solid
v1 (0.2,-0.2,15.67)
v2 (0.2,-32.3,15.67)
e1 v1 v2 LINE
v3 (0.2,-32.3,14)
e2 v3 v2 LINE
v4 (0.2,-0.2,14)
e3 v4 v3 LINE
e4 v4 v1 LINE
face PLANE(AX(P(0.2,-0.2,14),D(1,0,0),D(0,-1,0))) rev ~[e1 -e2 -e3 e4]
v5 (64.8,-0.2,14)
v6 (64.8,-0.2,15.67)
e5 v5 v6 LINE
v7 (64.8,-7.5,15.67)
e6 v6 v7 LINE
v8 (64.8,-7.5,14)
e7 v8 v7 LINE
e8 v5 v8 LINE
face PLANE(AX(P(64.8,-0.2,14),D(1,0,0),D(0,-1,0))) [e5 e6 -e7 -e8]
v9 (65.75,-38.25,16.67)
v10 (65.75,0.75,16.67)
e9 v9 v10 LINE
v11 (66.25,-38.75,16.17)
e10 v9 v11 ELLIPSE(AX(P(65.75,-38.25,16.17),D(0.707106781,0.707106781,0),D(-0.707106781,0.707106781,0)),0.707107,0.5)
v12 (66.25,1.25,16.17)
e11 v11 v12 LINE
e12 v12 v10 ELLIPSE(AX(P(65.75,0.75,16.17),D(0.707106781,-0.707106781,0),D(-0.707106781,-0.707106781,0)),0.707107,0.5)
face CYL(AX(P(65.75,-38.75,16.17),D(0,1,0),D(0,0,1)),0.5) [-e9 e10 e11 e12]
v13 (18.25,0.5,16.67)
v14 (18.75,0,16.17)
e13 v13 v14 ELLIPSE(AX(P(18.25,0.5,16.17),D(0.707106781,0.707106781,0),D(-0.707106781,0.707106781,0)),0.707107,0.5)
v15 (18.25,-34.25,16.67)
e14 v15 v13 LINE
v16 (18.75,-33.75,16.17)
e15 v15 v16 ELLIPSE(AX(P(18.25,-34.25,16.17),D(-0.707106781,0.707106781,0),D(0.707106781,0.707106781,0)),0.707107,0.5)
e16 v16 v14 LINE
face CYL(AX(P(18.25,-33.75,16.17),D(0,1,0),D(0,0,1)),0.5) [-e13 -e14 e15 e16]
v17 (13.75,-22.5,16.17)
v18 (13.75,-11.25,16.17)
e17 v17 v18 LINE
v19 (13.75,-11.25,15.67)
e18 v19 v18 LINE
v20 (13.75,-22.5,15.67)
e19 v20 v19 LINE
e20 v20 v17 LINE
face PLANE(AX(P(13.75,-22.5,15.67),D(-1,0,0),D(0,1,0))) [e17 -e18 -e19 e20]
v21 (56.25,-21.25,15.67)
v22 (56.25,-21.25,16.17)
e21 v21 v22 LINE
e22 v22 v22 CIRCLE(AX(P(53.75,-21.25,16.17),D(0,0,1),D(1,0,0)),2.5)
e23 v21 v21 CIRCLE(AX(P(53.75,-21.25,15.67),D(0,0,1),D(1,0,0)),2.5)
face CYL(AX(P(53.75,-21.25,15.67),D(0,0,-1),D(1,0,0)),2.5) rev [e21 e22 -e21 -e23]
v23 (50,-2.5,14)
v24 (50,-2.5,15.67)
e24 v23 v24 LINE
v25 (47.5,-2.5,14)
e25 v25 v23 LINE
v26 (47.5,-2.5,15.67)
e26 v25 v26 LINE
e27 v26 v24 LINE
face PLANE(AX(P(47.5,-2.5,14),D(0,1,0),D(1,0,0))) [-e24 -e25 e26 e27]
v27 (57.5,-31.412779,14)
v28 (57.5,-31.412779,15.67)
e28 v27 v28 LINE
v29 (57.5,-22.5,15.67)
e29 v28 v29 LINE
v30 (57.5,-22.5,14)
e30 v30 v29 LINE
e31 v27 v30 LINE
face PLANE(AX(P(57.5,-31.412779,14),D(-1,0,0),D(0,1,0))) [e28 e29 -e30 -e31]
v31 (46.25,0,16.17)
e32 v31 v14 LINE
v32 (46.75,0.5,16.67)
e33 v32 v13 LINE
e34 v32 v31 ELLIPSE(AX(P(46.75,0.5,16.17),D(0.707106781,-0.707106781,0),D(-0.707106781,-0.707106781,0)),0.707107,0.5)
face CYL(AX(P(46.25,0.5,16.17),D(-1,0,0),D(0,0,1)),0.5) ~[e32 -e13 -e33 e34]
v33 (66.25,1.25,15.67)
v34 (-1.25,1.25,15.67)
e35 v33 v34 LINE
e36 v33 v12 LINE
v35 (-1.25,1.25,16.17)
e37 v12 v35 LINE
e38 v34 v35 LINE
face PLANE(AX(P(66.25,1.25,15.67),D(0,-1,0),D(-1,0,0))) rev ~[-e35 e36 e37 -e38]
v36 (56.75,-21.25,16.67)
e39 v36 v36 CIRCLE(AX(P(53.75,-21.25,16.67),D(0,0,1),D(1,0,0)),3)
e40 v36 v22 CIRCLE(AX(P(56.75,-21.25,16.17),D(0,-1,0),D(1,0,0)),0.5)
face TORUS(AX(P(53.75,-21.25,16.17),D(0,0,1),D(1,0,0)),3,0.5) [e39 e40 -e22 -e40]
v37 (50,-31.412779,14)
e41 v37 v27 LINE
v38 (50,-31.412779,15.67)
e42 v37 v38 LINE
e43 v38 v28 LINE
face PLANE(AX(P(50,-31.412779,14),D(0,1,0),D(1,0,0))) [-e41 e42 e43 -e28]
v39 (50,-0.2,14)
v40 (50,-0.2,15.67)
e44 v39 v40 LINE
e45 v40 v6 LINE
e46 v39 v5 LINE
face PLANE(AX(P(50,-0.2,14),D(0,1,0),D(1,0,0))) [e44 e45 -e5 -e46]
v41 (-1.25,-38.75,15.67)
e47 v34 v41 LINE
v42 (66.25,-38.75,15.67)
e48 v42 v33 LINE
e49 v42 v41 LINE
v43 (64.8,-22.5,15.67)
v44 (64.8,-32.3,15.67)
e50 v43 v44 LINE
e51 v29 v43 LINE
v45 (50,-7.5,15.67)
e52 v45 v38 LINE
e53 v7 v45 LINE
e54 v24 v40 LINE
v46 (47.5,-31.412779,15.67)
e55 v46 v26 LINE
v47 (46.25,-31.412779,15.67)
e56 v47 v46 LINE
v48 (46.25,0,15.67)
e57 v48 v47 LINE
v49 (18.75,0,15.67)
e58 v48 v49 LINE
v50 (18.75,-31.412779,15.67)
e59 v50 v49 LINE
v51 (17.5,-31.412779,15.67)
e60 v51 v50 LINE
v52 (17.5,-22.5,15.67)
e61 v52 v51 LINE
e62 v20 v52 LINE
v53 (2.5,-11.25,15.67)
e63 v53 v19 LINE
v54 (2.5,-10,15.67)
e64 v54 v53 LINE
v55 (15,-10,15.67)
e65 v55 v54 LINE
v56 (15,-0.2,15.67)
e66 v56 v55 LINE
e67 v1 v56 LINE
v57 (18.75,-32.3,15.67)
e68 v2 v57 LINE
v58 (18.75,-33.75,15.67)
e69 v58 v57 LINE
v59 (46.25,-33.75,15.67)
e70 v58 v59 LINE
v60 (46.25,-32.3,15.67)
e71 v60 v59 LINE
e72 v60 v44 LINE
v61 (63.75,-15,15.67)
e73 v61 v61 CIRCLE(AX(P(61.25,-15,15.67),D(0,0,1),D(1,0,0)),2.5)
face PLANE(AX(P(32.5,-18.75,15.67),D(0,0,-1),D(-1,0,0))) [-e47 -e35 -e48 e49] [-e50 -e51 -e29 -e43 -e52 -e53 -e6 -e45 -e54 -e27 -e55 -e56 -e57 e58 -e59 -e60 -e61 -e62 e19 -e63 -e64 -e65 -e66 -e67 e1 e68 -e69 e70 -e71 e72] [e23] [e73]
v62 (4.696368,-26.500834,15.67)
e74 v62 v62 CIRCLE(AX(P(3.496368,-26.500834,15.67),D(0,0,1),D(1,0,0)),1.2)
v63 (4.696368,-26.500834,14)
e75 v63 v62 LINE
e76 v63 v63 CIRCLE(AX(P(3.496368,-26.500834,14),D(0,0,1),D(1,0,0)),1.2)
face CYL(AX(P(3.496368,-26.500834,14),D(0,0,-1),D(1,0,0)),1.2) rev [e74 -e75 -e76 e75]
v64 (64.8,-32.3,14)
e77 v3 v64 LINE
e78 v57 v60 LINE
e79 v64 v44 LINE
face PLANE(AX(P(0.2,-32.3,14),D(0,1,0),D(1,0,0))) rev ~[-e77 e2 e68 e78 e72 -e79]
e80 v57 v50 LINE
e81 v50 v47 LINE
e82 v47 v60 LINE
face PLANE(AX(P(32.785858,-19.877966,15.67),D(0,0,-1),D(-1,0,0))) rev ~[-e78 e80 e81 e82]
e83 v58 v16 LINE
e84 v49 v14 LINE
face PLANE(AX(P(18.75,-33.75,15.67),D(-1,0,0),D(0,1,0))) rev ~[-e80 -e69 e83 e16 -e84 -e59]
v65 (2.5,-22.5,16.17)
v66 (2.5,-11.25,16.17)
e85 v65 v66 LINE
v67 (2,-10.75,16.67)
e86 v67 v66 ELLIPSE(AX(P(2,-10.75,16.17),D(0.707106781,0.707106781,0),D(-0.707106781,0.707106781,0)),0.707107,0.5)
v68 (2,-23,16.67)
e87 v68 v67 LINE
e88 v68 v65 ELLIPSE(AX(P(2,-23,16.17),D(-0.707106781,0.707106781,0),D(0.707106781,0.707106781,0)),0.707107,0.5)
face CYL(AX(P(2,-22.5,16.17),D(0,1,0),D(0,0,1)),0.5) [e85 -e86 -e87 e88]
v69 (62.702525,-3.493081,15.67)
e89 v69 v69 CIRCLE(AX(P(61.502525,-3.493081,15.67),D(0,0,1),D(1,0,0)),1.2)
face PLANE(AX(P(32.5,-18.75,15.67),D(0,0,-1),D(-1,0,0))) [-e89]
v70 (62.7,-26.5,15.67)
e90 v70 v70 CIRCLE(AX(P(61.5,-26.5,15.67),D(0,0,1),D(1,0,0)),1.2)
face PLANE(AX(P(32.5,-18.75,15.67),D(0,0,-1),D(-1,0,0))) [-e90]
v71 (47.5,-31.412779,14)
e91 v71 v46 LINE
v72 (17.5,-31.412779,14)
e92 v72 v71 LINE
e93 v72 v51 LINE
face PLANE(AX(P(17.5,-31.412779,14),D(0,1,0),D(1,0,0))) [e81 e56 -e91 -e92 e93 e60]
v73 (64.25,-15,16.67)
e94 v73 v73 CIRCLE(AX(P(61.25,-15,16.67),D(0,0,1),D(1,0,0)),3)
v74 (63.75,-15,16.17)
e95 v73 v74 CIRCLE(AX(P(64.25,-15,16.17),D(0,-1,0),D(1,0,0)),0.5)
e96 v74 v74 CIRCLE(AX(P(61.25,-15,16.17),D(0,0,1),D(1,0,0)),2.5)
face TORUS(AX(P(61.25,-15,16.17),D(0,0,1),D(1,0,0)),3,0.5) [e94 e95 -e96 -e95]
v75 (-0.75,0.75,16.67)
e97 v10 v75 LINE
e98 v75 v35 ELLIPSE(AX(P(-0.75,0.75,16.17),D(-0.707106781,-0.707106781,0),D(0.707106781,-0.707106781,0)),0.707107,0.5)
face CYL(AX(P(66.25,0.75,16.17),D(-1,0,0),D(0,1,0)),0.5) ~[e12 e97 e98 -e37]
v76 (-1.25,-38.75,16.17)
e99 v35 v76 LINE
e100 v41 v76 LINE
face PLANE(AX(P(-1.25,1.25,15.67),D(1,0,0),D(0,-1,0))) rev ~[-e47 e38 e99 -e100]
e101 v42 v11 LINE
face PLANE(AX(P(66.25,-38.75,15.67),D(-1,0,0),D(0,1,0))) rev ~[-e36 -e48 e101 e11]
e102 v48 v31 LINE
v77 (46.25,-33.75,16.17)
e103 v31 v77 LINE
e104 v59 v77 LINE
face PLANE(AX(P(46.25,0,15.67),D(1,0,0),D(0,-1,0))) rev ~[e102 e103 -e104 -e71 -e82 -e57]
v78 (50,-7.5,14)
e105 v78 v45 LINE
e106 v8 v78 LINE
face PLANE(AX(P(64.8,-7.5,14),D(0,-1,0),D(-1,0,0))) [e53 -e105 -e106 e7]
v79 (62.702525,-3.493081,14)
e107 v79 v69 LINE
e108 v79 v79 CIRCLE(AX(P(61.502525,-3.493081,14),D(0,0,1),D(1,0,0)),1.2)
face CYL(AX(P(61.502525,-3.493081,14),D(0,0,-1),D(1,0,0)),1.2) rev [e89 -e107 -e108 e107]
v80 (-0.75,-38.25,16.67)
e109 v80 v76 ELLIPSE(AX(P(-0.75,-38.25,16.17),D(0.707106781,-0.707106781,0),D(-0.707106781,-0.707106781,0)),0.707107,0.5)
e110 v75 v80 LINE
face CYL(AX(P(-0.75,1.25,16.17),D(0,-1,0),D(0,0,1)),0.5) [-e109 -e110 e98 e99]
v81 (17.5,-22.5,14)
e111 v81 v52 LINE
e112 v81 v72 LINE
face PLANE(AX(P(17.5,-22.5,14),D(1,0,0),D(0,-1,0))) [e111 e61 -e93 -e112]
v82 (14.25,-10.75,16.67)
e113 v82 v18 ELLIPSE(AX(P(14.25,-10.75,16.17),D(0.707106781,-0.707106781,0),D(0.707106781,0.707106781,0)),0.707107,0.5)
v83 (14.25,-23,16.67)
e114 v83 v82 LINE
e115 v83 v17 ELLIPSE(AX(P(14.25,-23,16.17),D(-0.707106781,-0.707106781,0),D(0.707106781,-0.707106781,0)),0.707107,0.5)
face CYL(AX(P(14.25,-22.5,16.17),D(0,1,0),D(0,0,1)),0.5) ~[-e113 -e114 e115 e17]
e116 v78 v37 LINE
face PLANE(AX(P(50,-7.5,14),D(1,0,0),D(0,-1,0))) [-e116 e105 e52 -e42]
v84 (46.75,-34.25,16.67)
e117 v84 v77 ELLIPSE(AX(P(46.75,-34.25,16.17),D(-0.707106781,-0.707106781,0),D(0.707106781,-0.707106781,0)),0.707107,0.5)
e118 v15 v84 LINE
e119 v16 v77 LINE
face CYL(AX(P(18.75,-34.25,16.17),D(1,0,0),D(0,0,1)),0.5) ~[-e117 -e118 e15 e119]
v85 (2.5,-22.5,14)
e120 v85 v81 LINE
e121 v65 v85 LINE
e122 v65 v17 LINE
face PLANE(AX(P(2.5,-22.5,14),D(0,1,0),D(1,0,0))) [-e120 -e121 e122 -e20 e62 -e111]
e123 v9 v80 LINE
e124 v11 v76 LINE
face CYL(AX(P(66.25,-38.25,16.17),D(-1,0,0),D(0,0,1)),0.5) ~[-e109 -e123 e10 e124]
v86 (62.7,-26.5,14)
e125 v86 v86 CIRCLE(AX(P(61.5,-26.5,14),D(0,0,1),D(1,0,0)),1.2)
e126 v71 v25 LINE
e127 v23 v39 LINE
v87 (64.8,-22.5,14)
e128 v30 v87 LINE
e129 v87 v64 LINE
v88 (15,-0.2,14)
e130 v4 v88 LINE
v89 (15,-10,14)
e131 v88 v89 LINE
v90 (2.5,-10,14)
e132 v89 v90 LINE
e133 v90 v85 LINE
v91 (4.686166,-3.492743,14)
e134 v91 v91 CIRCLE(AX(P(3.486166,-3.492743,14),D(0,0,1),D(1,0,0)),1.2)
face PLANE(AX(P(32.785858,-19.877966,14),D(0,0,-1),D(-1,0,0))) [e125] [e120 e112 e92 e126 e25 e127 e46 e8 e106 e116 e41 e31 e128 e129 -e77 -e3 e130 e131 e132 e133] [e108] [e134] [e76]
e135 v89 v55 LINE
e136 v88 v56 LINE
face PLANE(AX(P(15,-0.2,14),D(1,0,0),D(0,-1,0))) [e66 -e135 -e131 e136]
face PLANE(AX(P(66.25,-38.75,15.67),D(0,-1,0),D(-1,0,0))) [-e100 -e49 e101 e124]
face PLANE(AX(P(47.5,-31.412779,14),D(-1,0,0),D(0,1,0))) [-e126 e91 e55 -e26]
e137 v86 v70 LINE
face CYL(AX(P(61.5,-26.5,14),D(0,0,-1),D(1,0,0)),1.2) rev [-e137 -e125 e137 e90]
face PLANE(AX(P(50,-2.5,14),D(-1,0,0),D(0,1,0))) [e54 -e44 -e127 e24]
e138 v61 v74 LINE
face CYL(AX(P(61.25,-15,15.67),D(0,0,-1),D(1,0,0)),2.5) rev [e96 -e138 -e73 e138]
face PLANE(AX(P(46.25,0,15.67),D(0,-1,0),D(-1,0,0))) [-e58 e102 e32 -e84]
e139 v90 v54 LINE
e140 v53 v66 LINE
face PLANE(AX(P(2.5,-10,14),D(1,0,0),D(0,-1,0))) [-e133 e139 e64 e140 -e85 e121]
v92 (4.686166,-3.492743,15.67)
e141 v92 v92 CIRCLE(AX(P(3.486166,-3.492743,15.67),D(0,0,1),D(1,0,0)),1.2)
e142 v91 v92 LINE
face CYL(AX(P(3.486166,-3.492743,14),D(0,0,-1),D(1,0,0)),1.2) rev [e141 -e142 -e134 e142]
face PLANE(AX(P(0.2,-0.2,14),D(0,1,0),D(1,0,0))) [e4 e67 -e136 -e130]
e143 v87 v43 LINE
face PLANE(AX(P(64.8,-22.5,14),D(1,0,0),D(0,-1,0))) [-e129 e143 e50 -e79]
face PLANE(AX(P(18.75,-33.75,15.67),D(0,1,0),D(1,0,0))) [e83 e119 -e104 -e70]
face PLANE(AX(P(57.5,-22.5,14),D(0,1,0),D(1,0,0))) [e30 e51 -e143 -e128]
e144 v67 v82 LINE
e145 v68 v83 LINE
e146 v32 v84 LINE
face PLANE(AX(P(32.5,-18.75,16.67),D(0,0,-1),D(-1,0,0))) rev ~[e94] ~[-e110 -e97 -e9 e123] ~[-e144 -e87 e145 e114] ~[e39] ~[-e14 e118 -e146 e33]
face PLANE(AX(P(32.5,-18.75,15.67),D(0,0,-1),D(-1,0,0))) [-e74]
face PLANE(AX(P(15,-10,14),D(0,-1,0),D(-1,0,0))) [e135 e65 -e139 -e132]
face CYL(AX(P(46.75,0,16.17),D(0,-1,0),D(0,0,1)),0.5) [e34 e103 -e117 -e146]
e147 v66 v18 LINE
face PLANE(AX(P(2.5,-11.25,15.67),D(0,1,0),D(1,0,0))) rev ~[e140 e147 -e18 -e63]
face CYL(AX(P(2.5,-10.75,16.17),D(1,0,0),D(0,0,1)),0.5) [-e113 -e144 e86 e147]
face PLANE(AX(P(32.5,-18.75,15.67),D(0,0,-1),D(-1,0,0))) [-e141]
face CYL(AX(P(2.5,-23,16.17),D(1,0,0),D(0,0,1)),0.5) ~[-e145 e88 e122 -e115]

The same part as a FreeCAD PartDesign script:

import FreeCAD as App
import Part
import Sketcher
from FreeCAD import Vector


def edges_at(feature, points):
    """Names of the edges that pass closest to the given points."""
    edges = feature.Shape.Edges
    near = lambda p: min(range(len(edges)), key=lambda i: edges[i].distToShape(Part.Vertex(*p))[0])
    return sorted({f"Edge{near(p) + 1}" for p in points})


def add_polygon(sketch, points):
    """Adds a closed chain of lines whose ends are joined by coincident constraints."""
    first, n = sketch.GeometryCount, len(points)
    for a, b in zip(points, points[1:] + points[:1]):
        sketch.addGeometry(Part.LineSegment(App.Vector(*a, 0), App.Vector(*b, 0)), False)
    for i in range(n):
        sketch.addConstraint(Sketcher.Constraint("Coincident", first + i, 2, first + (i + 1) % n, 1))

doc = App.newDocument("Part")
body = doc.addObject("PartDesign::Body", "Body")

# Sketch on XY plane
sketch1 = body.newObject("Sketcher::SketchObject", "Sketch")
sketch1.AttachmentSupport = (doc.getObject("XY_Plane"), [""])
sketch1.MapMode = "FlatFace"
add_polygon(sketch1, [(15, -0.2), (0.2, -0.2), (0.2, -32.3), (64.8, -32.3), (64.8, -22.5), (57.5, -22.5), (57.5, -31.4), (50, -31.4), (50, -7.5), (64.8, -7.5), (64.8, -0.2), (50, -0.2), (50, -2.5), (47.5, -2.5), (47.5, -31.4), (17.5, -31.4), (17.5, -22.5), (2.5, -22.5), (2.5, -10), (15, -10)])  # lines 0-19
sketch1.addGeometry(Part.Circle(Vector(61.5, -26.5, 0), Vector(0, 0, 1), 1.2), False)  # 20
sketch1.addGeometry(Part.Circle(Vector(3.5, -26.5, 0), Vector(0, 0, 1), 1.2), False)  # 21
sketch1.addGeometry(Part.Circle(Vector(61.5, -3.5, 0), Vector(0, 0, 1), 1.2), False)  # 22
sketch1.addGeometry(Part.Circle(Vector(3.5, -3.5, 0), Vector(0, 0, 1), 1.2), False)  # 23
sketch1.addConstraint(Sketcher.Constraint("Horizontal", 0))
sketch1.addConstraint(Sketcher.Constraint("Vertical", 1))
sketch1.addConstraint(Sketcher.Constraint("Horizontal", 2))
sketch1.addConstraint(Sketcher.Constraint("Vertical", 3))
sketch1.addConstraint(Sketcher.Constraint("Horizontal", 4))
sketch1.addConstraint(Sketcher.Constraint("Vertical", 5))
sketch1.addConstraint(Sketcher.Constraint("Horizontal", 6))
sketch1.addConstraint(Sketcher.Constraint("Vertical", 7))
sketch1.addConstraint(Sketcher.Constraint("Horizontal", 8))
sketch1.addConstraint(Sketcher.Constraint("Vertical", 9))
sketch1.addConstraint(Sketcher.Constraint("Horizontal", 10))
sketch1.addConstraint(Sketcher.Constraint("Vertical", 11))
sketch1.addConstraint(Sketcher.Constraint("Horizontal", 12))
sketch1.addConstraint(Sketcher.Constraint("Vertical", 13))
sketch1.addConstraint(Sketcher.Constraint("Horizontal", 14))
sketch1.addConstraint(Sketcher.Constraint("Vertical", 15))
sketch1.addConstraint(Sketcher.Constraint("Horizontal", 16))
sketch1.addConstraint(Sketcher.Constraint("Vertical", 17))
sketch1.addConstraint(Sketcher.Constraint("Horizontal", 18))
sketch1.addConstraint(Sketcher.Constraint("Vertical", 19))
sketch1.addConstraint(Sketcher.Constraint("Equal", 20, 21))
sketch1.addConstraint(Sketcher.Constraint("Equal", 21, 22))
sketch1.addConstraint(Sketcher.Constraint("Equal", 22, 23))
sketch1.addConstraint(Sketcher.Constraint("Horizontal", 0, 2, 9, 2))
sketch1.addConstraint(Sketcher.Constraint("Horizontal", 6, 2, 13, 2))
sketch1.addConstraint(Sketcher.Constraint("Horizontal", 4, 2, 15, 2))
sketch1.addConstraint(Sketcher.Constraint("Vertical", 3, 2, 8, 2))
sketch1.addConstraint(Sketcher.Constraint("Vertical", 7, 2, 10, 2))
sketch1.addConstraint(Sketcher.Constraint("Equal", 0, 8))
sketch1.addConstraint(Sketcher.Constraint("Equal", 4, 9))
sketch1.addConstraint(Sketcher.Constraint("Equal", 18, 17))
sketch1.addConstraint(Sketcher.Constraint("Equal", 3, 19))
sketch1.addConstraint(Sketcher.Constraint("Diameter", 20, 2.4))
sketch1.addConstraint(Sketcher.Constraint("DistanceX", 14, 2, 14, 1, 30.0))
sketch1.addConstraint(Sketcher.Constraint("DistanceX", 16, 2, 16, 1, 15.0))
sketch1.addConstraint(Sketcher.Constraint("DistanceX", 0, 2, 0, 1, 14.8))
sketch1.addConstraint(Sketcher.Constraint("DistanceX", 2, 1, 2, 2, 64.6))
sketch1.addConstraint(Sketcher.Constraint("DistanceX", 4, 2, 4, 1, 7.3))
sketch1.addConstraint(Sketcher.Constraint("DistanceX", 12, 2, 12, 1, 2.5))
sketch1.addConstraint(Sketcher.Constraint("DistanceY", 1, 2, 1, 1, 32.1))
sketch1.addConstraint(Sketcher.Constraint("DistanceY", 11, 2, 11, 1, 2.3))
sketch1.addConstraint(Sketcher.Constraint("DistanceX", -1, 1, 6, 2, 50.0))
sketch1.addConstraint(Sketcher.Constraint("DistanceY", 17, 2, -1, 1, 10.0))
sketch1.addConstraint(Sketcher.Constraint("DistanceY", 20, 3, 3, 2, 4.0))
sketch1.addConstraint(Sketcher.Constraint("DistanceX", 4, 2, 20, 3, 4.0))
sketch1.addConstraint(Sketcher.Constraint("DistanceY", 5, 2, 5, 1, 8.912779))
sketch1.addConstraint(Sketcher.Constraint("DistanceY", 5, 2, 22, 3, 27.919698))
sketch1.addConstraint(Sketcher.Constraint("DistanceY", 21, 3, 23, 3, 23.008091))
sketch1.addConstraint(Sketcher.Constraint("DistanceX", 23, 3, 22, 3, 58.016359))
sketch1.addConstraint(Sketcher.Constraint("DistanceY", 22, 3, 23, 3, 0.000338))
sketch1.addConstraint(Sketcher.Constraint("DistanceX", -1, 1, 21, 3, 3.496368))
sketch1.addConstraint(Sketcher.Constraint("DistanceX", -1, 1, 22, 3, 61.502525))
pad1 = body.newObject("PartDesign::Pad", "Pad")
pad1.Profile = sketch1
pad1.Length = 1.67

# Sketch on XY plane
sketch2 = body.newObject("Sketcher::SketchObject", "Sketch001")
sketch2.AttachmentSupport = (doc.getObject("XY_Plane"), [""])
sketch2.MapMode = "FlatFace"
sketch2.AttachmentOffset = App.Placement(Vector(0, 0, 1.67), App.Rotation())
add_polygon(sketch2, [(66.2, 1.2), (-1.2, 1.2), (-1.2, -38.8), (66.2, -38.8)])  # lines 0-3
sketch2.addGeometry(Part.Circle(Vector(53.8, -21.2, 0), Vector(0, 0, 1), 2.5), False)  # 4
sketch2.addGeometry(Part.Circle(Vector(61.2, -15, 0), Vector(0, 0, 1), 2.5), False)  # 5
add_polygon(sketch2, [(18.8, 0), (46.2, 0), (46.2, -33.8), (18.8, -33.8)])  # lines 6-9
add_polygon(sketch2, [(2.5, -22.5), (2.5, -11.2), (13.8, -11.2), (13.8, -22.5)])  # lines 10-13
sketch2.addConstraint(Sketcher.Constraint("Horizontal", 0))
sketch2.addConstraint(Sketcher.Constraint("Vertical", 1))
sketch2.addConstraint(Sketcher.Constraint("Horizontal", 2))
sketch2.addConstraint(Sketcher.Constraint("Vertical", 3))
sketch2.addConstraint(Sketcher.Constraint("Horizontal", 6))
sketch2.addConstraint(Sketcher.Constraint("Vertical", 7))
sketch2.addConstraint(Sketcher.Constraint("Horizontal", 8))
sketch2.addConstraint(Sketcher.Constraint("Vertical", 9))
sketch2.addConstraint(Sketcher.Constraint("Vertical", 10))
sketch2.addConstraint(Sketcher.Constraint("Horizontal", 11))
sketch2.addConstraint(Sketcher.Constraint("Vertical", 12))
sketch2.addConstraint(Sketcher.Constraint("Horizontal", 13))
sketch2.addConstraint(Sketcher.Constraint("Equal", 4, 5))
sketch2.addConstraint(Sketcher.Constraint("PointOnObject", 6, 2, -1))
sketch2.addConstraint(Sketcher.Constraint("Equal", 13, 10))
sketch2.addConstraint(Sketcher.Constraint("Diameter", 4, 5.0))
sketch2.addConstraint(Sketcher.Constraint("DistanceY", 1, 2, 1, 1, 40.0))
sketch2.addConstraint(Sketcher.Constraint("DistanceX", 0, 2, 0, 1, 67.5))
sketch2.addConstraint(Sketcher.Constraint("DistanceX", 6, 1, 6, 2, 27.5))
sketch2.addConstraint(Sketcher.Constraint("DistanceY", 5, 3, -1, 1, 15.0))
sketch2.addConstraint(Sketcher.Constraint("DistanceX", 0, 2, 4, 3, 55.0))
sketch2.addConstraint(Sketcher.Constraint("DistanceX", 5, 3, 2, 2, 5.0))
sketch2.addConstraint(Sketcher.Constraint("DistanceX", 6, 2, 3, 2, 20.0))
sketch2.addConstraint(Sketcher.Constraint("DistanceY", 2, 2, 7, 2, 5.0))
sketch2.addConstraint(Sketcher.Constraint("DistanceX", 11, 2, 9, 2, 5.0))
sketch2.addConstraint(Sketcher.Constraint("DistanceX", 11, 1, 11, 2, 11.25))
sketch2.addConstraint(Sketcher.Constraint("DistanceY", 7, 2, 7, 1, 33.75))
sketch2.addConstraint(Sketcher.Constraint("DistanceX", -1, 1, 10, 2, 2.5))
sketch2.addConstraint(Sketcher.Constraint("DistanceY", 12, 2, -1, 1, 22.5))
sketch2.addConstraint(Sketcher.Constraint("DistanceY", 4, 3, 0, 2, 22.5))
pad2 = body.newObject("PartDesign::Pad", "Pad001")
pad2.Profile = sketch2
pad2.Length = 1
doc.recompute()

fillet = body.newObject("PartDesign::Fillet", "Fillet")
fillet.Base = (pad2, edges_at(pad2, [
    (-1.25, -18.75, 2.67),
    (32.5, 1.25, 2.67),
    (32.5, 1.25, 2.67),
    (32.5, 1.25, 2.67),
    (66.25, -18.75, 2.67),
    (66.25, -18.75, 2.67),
    (66.25, -18.75, 2.67),
    (66.25, -18.75, 2.67),
    (32.5, -38.75, 2.67),
    (-1.25, -18.75, 2.67),
    (-1.25, -18.75, 2.67),
    (18.75, -16.875, 2.67),
    (18.75, -16.875, 2.67),
    (32.5, -33.75, 2.67),
    (46.25, -16.875, 2.67),
    (46.25, -16.875, 2.67),
    (46.25, -16.875, 2.67),
    (32.5, 0, 2.67),
    (2.5, -16.875, 2.67),
    (8.125, -22.5, 2.67),
    (13.75, -16.875, 2.67),
    (8.125, -11.25, 2.67),
    (51.25, -21.25, 2.67),
    (58.75, -15, 2.67),
]))
fillet.Radius = 0.5
body2 = doc.addObject("PartDesign::Body", "Body001")
doc.recompute()

body.Placement = App.Placement(Vector(0, 0, 14), App.Rotation(Vector(0, 0, 1), 0))
boolean = body2.newObject("PartDesign::Boolean", "Boolean")
boolean.Type = "Fuse"
boolean.addObjects([body])

doc.recompute()
